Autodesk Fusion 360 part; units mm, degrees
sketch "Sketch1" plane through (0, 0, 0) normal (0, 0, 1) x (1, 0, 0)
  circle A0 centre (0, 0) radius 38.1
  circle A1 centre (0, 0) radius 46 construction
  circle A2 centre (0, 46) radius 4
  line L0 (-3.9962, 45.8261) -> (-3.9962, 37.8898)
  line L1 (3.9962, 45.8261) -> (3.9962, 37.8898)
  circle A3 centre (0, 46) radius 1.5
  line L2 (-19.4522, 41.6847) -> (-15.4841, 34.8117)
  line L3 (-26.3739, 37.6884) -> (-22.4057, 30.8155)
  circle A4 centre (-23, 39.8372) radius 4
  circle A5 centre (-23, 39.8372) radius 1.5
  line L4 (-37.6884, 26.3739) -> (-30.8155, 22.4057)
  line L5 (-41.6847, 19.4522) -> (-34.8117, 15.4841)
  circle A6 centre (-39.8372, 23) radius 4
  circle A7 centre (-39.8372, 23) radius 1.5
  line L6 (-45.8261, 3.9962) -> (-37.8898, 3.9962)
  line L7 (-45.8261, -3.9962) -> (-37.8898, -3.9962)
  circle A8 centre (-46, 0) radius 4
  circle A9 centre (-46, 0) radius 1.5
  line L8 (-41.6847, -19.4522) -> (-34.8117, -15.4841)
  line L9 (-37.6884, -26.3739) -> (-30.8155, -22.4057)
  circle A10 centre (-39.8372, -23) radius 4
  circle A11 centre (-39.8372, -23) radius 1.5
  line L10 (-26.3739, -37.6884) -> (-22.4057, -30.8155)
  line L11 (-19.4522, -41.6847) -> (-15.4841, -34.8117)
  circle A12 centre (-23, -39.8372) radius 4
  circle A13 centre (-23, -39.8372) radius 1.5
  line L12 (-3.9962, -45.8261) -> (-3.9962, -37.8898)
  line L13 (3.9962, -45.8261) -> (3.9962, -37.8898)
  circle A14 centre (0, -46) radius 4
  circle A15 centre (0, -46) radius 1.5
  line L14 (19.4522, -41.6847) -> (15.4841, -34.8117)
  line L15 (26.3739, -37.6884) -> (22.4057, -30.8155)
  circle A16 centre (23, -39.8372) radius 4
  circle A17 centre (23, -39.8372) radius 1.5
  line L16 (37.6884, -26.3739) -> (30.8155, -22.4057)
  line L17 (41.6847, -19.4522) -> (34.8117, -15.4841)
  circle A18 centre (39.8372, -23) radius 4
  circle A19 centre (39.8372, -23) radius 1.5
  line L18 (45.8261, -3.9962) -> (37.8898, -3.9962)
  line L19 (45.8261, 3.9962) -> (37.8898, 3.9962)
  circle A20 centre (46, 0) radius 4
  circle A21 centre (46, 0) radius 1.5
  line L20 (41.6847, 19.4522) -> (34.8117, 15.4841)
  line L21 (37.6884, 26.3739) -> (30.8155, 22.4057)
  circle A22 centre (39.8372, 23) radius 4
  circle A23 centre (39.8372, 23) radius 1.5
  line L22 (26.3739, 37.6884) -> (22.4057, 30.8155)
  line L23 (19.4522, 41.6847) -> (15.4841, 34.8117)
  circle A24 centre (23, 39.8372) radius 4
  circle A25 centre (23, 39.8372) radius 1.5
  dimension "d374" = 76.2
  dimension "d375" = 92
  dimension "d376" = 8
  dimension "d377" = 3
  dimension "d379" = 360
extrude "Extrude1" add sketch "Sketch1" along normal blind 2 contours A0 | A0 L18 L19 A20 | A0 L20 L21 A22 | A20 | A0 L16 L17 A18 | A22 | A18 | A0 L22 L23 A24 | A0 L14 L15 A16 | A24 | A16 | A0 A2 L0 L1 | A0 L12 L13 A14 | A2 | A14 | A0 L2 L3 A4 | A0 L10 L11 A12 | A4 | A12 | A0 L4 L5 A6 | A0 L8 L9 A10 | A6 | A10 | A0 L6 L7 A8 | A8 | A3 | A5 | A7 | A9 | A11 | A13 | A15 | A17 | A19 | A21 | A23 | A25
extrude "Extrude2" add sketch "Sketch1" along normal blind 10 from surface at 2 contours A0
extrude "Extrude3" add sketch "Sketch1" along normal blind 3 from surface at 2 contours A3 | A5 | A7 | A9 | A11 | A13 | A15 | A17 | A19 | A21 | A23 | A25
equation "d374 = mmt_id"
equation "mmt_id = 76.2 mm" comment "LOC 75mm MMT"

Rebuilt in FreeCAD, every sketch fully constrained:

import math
import FreeCAD as App
import Part
import Sketcher

V = App.Vector
Q = App.Units.Quantity

doc = App.newDocument("Part")
body = doc.addObject("PartDesign::Body", "Body")

# Sketch on XY plane
sketch1 = body.newObject("Sketcher::SketchObject", "Sketch")
sketch1.AttachmentSupport = (doc.getObject("XY_Plane"), [""])
sketch1.MapMode = "FlatFace"
sketch1.addGeometry([
    Part.ArcOfCircle(Part.Circle(V(0, 0, 0), V(0, 0, 1), 38.1), math.radians(-23.9793), math.radians(-6.020671)),  # 0
    Part.LineSegment(V(37.8898, -3.9962, 0), V(45.8261, -3.9962, 0)),  # 1
    Part.ArcOfCircle(Part.Circle(V(46, 0, 0), V(0, 0, 1), 4), math.radians(-92.491731), math.radians(92.491731)),  # 2
    Part.LineSegment(V(45.8261, 3.9962, 0), V(37.8898, 3.9962, 0)),  # 3
    Part.ArcOfCircle(Part.Circle(V(0, 0, 0), V(0, 0, 1), 38.1), math.radians(6.020671), math.radians(23.9793)),  # 4
    Part.LineSegment(V(34.8117, 15.4841, 0), V(41.6847, 19.4522, 0)),  # 5
    Part.ArcOfCircle(Part.Circle(V(39.8372, 23, 0), V(0, 0, 1), 4), math.radians(-62.491967), math.radians(122.492615)),  # 6
    Part.LineSegment(V(37.6884, 26.3739, 0), V(30.8155, 22.4057, 0)),  # 7
    Part.ArcOfCircle(Part.Circle(V(0, 0, 0), V(0, 0, 1), 38.1), math.radians(36.020596), math.radians(53.979404)),  # 8
    Part.LineSegment(V(22.4057, 30.8155, 0), V(26.3739, 37.6884, 0)),  # 9
    Part.ArcOfCircle(Part.Circle(V(23, 39.8372, 0), V(0, 0, 1), 4), math.radians(-32.492615), math.radians(152.491967)),  # 10
    Part.LineSegment(V(19.4522, 41.6847, 0), V(15.4841, 34.8117, 0)),  # 11
    Part.ArcOfCircle(Part.Circle(V(0, 0, 0), V(0, 0, 1), 38.1), math.radians(66.0207), math.radians(83.979329)),  # 12
    Part.LineSegment(V(3.9962, 37.8898, 0), V(3.9962, 45.8261, 0)),  # 13
    Part.ArcOfCircle(Part.Circle(V(0, 46, 0), V(0, 0, 1), 4), math.radians(-2.491731), math.radians(182.491731)),  # 14
    Part.LineSegment(V(-3.9962, 45.8261, 0), V(-3.9962, 37.8898, 0)),  # 15
    Part.ArcOfCircle(Part.Circle(V(0, 0, 0), V(0, 0, 1), 38.1), math.radians(96.020671), math.radians(113.9793)),  # 16
    Part.LineSegment(V(-15.4841, 34.8117, 0), V(-19.4522, 41.6847, 0)),  # 17
    Part.ArcOfCircle(Part.Circle(V(-23, 39.8372, 0), V(0, 0, 1), 4), math.radians(27.508033), math.radians(212.492615)),  # 18
    Part.LineSegment(V(-26.3739, 37.6884, 0), V(-22.4057, 30.8155, 0)),  # 19
    Part.ArcOfCircle(Part.Circle(V(0, 0, 0), V(0, 0, 1), 38.1), math.radians(126.020596), math.radians(143.979404)),  # 20
    Part.LineSegment(V(-30.8155, 22.4057, 0), V(-37.6884, 26.3739, 0)),  # 21
    Part.ArcOfCircle(Part.Circle(V(-39.8372, 23, 0), V(0, 0, 1), 4), math.radians(57.507385), math.radians(242.491967)),  # 22
    Part.LineSegment(V(-41.6847, 19.4522, 0), V(-34.8117, 15.4841, 0)),  # 23
    Part.ArcOfCircle(Part.Circle(V(0, 0, 0), V(0, 0, 1), 38.1), math.radians(156.0207), math.radians(173.979329)),  # 24
    Part.LineSegment(V(-37.8898, 3.9962, 0), V(-45.8261, 3.9962, 0)),  # 25
    Part.ArcOfCircle(Part.Circle(V(-46, 0, 0), V(0, 0, 1), 4), math.radians(87.508269), math.radians(272.491731)),  # 26
    Part.LineSegment(V(-45.8261, -3.9962, 0), V(-37.8898, -3.9962, 0)),  # 27
    Part.ArcOfCircle(Part.Circle(V(0, 0, 0), V(0, 0, 1), 38.1), math.radians(-173.979329), math.radians(-156.0207)),  # 28
    Part.LineSegment(V(-34.8117, -15.4841, 0), V(-41.6847, -19.4522, 0)),  # 29
    Part.ArcOfCircle(Part.Circle(V(-39.8372, -23, 0), V(0, 0, 1), 4), math.radians(117.508033), math.radians(302.492615)),  # 30
    Part.LineSegment(V(-37.6884, -26.3739, 0), V(-30.8155, -22.4057, 0)),  # 31
    Part.ArcOfCircle(Part.Circle(V(0, 0, 0), V(0, 0, 1), 38.1), math.radians(-143.979404), math.radians(-126.020596)),  # 32
    Part.LineSegment(V(-22.4057, -30.8155, 0), V(-26.3739, -37.6884, 0)),  # 33
    Part.ArcOfCircle(Part.Circle(V(-23, -39.8372, 0), V(0, 0, 1), 4), math.radians(147.507385), math.radians(332.491967)),  # 34
    Part.LineSegment(V(-19.4522, -41.6847, 0), V(-15.4841, -34.8117, 0)),  # 35
    Part.ArcOfCircle(Part.Circle(V(0, 0, 0), V(0, 0, 1), 38.1), math.radians(-113.9793), math.radians(-96.020671)),  # 36
    Part.LineSegment(V(-3.9962, -37.8898, 0), V(-3.9962, -45.8261, 0)),  # 37
    Part.ArcOfCircle(Part.Circle(V(0, -46, 0), V(0, 0, 1), 4), math.radians(177.508269), math.radians(362.491731)),  # 38
    Part.LineSegment(V(3.9962, -45.8261, 0), V(3.9962, -37.8898, 0)),  # 39
    Part.ArcOfCircle(Part.Circle(V(0, 0, 0), V(0, 0, 1), 38.1), math.radians(-83.979329), math.radians(-66.0207)),  # 40
    Part.LineSegment(V(15.4841, -34.8117, 0), V(19.4522, -41.6847, 0)),  # 41
    Part.ArcOfCircle(Part.Circle(V(23, -39.8372, 0), V(0, 0, 1), 4), math.radians(-152.491967), math.radians(32.492615)),  # 42
    Part.LineSegment(V(26.3739, -37.6884, 0), V(22.4057, -30.8155, 0)),  # 43
    Part.ArcOfCircle(Part.Circle(V(0, 0, 0), V(0, 0, 1), 38.1), math.radians(-53.979404), math.radians(-36.020596)),  # 44
    Part.LineSegment(V(30.8155, -22.4057, 0), V(37.6884, -26.3739, 0)),  # 45
    Part.ArcOfCircle(Part.Circle(V(39.8372, -23, 0), V(0, 0, 1), 4), math.radians(-122.492615), math.radians(62.491967)),  # 46
    Part.LineSegment(V(41.6847, -19.4522, 0), V(34.8117, -15.4841, 0)),  # 47
], False)
sketch1.addConstraint([
    Sketcher.Constraint("Coincident", 0, 2, 1, 1),
    Sketcher.Constraint("Coincident", 1, 2, 2, 1),
    Sketcher.Constraint("Coincident", 2, 2, 3, 1),
    Sketcher.Constraint("Coincident", 3, 2, 4, 1),
    Sketcher.Constraint("Coincident", 4, 2, 5, 1),
    Sketcher.Constraint("Coincident", 5, 2, 6, 1),
    Sketcher.Constraint("Coincident", 6, 2, 7, 1),
    Sketcher.Constraint("Coincident", 7, 2, 8, 1),
    Sketcher.Constraint("Coincident", 8, 2, 9, 1),
    Sketcher.Constraint("Coincident", 9, 2, 10, 1),
    Sketcher.Constraint("Coincident", 10, 2, 11, 1),
    Sketcher.Constraint("Coincident", 11, 2, 12, 1),
    Sketcher.Constraint("Coincident", 12, 2, 13, 1),
    Sketcher.Constraint("Coincident", 13, 2, 14, 1),
    Sketcher.Constraint("Coincident", 14, 2, 15, 1),
    Sketcher.Constraint("Coincident", 15, 2, 16, 1),
    Sketcher.Constraint("Coincident", 16, 2, 17, 1),
    Sketcher.Constraint("Coincident", 17, 2, 18, 1),
    Sketcher.Constraint("Coincident", 18, 2, 19, 1),
    Sketcher.Constraint("Coincident", 19, 2, 20, 1),
    Sketcher.Constraint("Coincident", 20, 2, 21, 1),
    Sketcher.Constraint("Coincident", 21, 2, 22, 1),
    Sketcher.Constraint("Coincident", 22, 2, 23, 1),
    Sketcher.Constraint("Coincident", 23, 2, 24, 1),
    Sketcher.Constraint("Coincident", 24, 2, 25, 1),
    Sketcher.Constraint("Coincident", 25, 2, 26, 1),
    Sketcher.Constraint("Coincident", 26, 2, 27, 1),
    Sketcher.Constraint("Coincident", 27, 2, 28, 1),
    Sketcher.Constraint("Coincident", 28, 2, 29, 1),
    Sketcher.Constraint("Coincident", 29, 2, 30, 1),
    Sketcher.Constraint("Coincident", 30, 2, 31, 1),
    Sketcher.Constraint("Coincident", 31, 2, 32, 1),
    Sketcher.Constraint("Coincident", 32, 2, 33, 1),
    Sketcher.Constraint("Coincident", 33, 2, 34, 1),
    Sketcher.Constraint("Coincident", 34, 2, 35, 1),
    Sketcher.Constraint("Coincident", 35, 2, 36, 1),
    Sketcher.Constraint("Coincident", 36, 2, 37, 1),
    Sketcher.Constraint("Coincident", 37, 2, 38, 1),
    Sketcher.Constraint("Coincident", 38, 2, 39, 1),
    Sketcher.Constraint("Coincident", 39, 2, 40, 1),
    Sketcher.Constraint("Coincident", 40, 2, 41, 1),
    Sketcher.Constraint("Coincident", 41, 2, 42, 1),
    Sketcher.Constraint("Coincident", 42, 2, 43, 1),
    Sketcher.Constraint("Coincident", 43, 2, 44, 1),
    Sketcher.Constraint("Coincident", 44, 2, 45, 1),
    Sketcher.Constraint("Coincident", 45, 2, 46, 1),
    Sketcher.Constraint("Coincident", 46, 2, 47, 1),
    Sketcher.Constraint("Coincident", 47, 2, 0, 1),
    Sketcher.Constraint("Horizontal", 1),
    Sketcher.Constraint("Horizontal", 3),
    Sketcher.Constraint("Vertical", 13),
    Sketcher.Constraint("Vertical", 15),
    Sketcher.Constraint("Horizontal", 25),
    Sketcher.Constraint("Horizontal", 27),
    Sketcher.Constraint("Vertical", 37),
    Sketcher.Constraint("Vertical", 39),
    Sketcher.Constraint("Coincident", 0, 3, -1, 1),
    Sketcher.Constraint("Coincident", 4, 3, -1, 1),
    Sketcher.Constraint("Coincident", 8, 3, -1, 1),
    Sketcher.Constraint("Coincident", 12, 3, -1, 1),
    Sketcher.Constraint("Coincident", 16, 3, -1, 1),
    Sketcher.Constraint("Coincident", 20, 3, -1, 1),
    Sketcher.Constraint("Coincident", 24, 3, -1, 1),
    Sketcher.Constraint("Coincident", 28, 3, -1, 1),
    Sketcher.Constraint("Coincident", 32, 3, -1, 1),
    Sketcher.Constraint("Coincident", 36, 3, -1, 1),
    Sketcher.Constraint("Coincident", 40, 3, -1, 1),
    Sketcher.Constraint("Coincident", 44, 3, -1, 1),
    Sketcher.Constraint("Equal", 0, 4),
    Sketcher.Constraint("Equal", 2, 6),
    Sketcher.Constraint("Equal", 4, 8),
    Sketcher.Constraint("Equal", 6, 10),
    Sketcher.Constraint("Equal", 8, 12),
    Sketcher.Constraint("Equal", 10, 14),
    Sketcher.Constraint("Equal", 12, 16),
    Sketcher.Constraint("Equal", 14, 18),
    Sketcher.Constraint("Equal", 16, 20),
    Sketcher.Constraint("Equal", 18, 22),
    Sketcher.Constraint("Equal", 20, 24),
    Sketcher.Constraint("Equal", 22, 26),
    Sketcher.Constraint("Equal", 24, 28),
    Sketcher.Constraint("Equal", 26, 30),
    Sketcher.Constraint("Equal", 28, 32),
    Sketcher.Constraint("Equal", 30, 34),
    Sketcher.Constraint("Equal", 32, 36),
    Sketcher.Constraint("Equal", 34, 38),
    Sketcher.Constraint("Equal", 36, 40),
    Sketcher.Constraint("Equal", 38, 42),
    Sketcher.Constraint("Equal", 40, 44),
    Sketcher.Constraint("Equal", 42, 46),
    Sketcher.Constraint("Symmetric", 2, 3, 26, 3, -1, 1),
    Sketcher.Constraint("Symmetric", 6, 3, 30, 3, -1, 1),
    Sketcher.Constraint("Symmetric", 10, 3, 34, 3, -1, 1),
    Sketcher.Constraint("Symmetric", 14, 3, 38, 3, -1, 1),
    Sketcher.Constraint("Symmetric", 18, 3, 42, 3, -1, 1),
    Sketcher.Constraint("Symmetric", 22, 3, 46, 3, -1, 1),
    Sketcher.Constraint("Symmetric", 10, 3, 18, 3, -2),
    Sketcher.Constraint("Symmetric", 6, 3, 22, 3, -2),
    Sketcher.Constraint("Symmetric", 13, 2, 14, 2, -2),
    Sketcher.Constraint("Symmetric", 2, 2, 25, 2, -2),
    Sketcher.Constraint("Parallel", 5, 7),
    Sketcher.Constraint("Parallel", 9, 11),
    Sketcher.Constraint("Perpendicular", 7, 17),
    Sketcher.Constraint("Parallel", 17, 19),
    Sketcher.Constraint("Perpendicular", 11, 21),
    Sketcher.Constraint("Parallel", 21, 23),
    Sketcher.Constraint("Perpendicular", 19, 29),
    Sketcher.Constraint("Parallel", 29, 31),
    Sketcher.Constraint("Perpendicular", 23, 33),
    Sketcher.Constraint("Parallel", 33, 35),
    Sketcher.Constraint("Perpendicular", 31, 41),
    Sketcher.Constraint("Parallel", 41, 43),
    Sketcher.Constraint("Perpendicular", 35, 45),
    Sketcher.Constraint("Parallel", 45, 47),
    Sketcher.Constraint("Horizontal", 11, 2, 16, 2),
    Sketcher.Constraint("Horizontal", 10, 2, 17, 2),
    Sketcher.Constraint("Horizontal", 9, 2, 18, 2),
    Sketcher.Constraint("Horizontal", 6, 2, 21, 2),
    Sketcher.Constraint("Horizontal", 5, 2, 22, 2),
    Sketcher.Constraint("Horizontal", 1, 2, 26, 2),
    Sketcher.Constraint("Horizontal", 37, 2, 38, 2),
    Sketcher.Constraint("Horizontal", 34, 2, 41, 2),
    Sketcher.Constraint("Horizontal", 33, 2, 42, 2),
    Sketcher.Constraint("Horizontal", 30, 2, 45, 2),
    Sketcher.Constraint("Horizontal", 29, 2, 46, 2),
    Sketcher.Constraint("Vertical", 1, 2, 2, 2),
    Sketcher.Constraint("Vertical", 22, 2, 29, 2),
    Sketcher.Constraint("Vertical", 21, 2, 30, 2),
    Sketcher.Constraint("Vertical", 18, 2, 33, 2),
    Sketcher.Constraint("Vertical", 17, 2, 34, 2),
    Sketcher.Constraint("Vertical", 13, 2, 38, 2),
    Sketcher.Constraint("Equal", 27, 13),
    Sketcher.Constraint("Equal", 5, 7),
    Sketcher.Constraint("Equal", 7, 9),
    Sketcher.Constraint("Equal", 9, 11),
    Sketcher.Constraint("Radius", 2, Q("4 mm")),
    Sketcher.Constraint("Radius", 0, Q("38.1 mm")),
    Sketcher.Constraint("Angle", 5, Q("29.9998 deg")),
    Sketcher.Constraint("DistanceX", -1, 1, 2, 3, Q("46 mm")),
    Sketcher.Constraint("DistanceY", -1, 1, 6, 3, Q("23 mm")),
    Sketcher.Constraint("DistanceX", -1, 1, 10, 3, Q("23 mm")),
    Sketcher.Constraint("DistanceY", -1, 1, 14, 3, Q("46 mm")),
    Sketcher.Constraint("DistanceX", 1, 1, 1, 2, Q("7.9363 mm")),
    Sketcher.Constraint("DistanceY", -1, 1, 4, 2, Q("15.484 mm")),
    Sketcher.Constraint("DistanceX", -1, 1, 9, 2, Q("26.374 mm")),
    Sketcher.Constraint("DistanceX", -1, 1, 11, 2, Q("15.484 mm")),
])
pad1 = body.newObject("PartDesign::Pad", "Pad")
pad1.Profile = sketch1
pad1.Length = 2

# Sketch on XY plane
sketch2 = body.newObject("Sketcher::SketchObject", "Sketch001")
sketch2.AttachmentSupport = (doc.getObject("XY_Plane"), [""])
sketch2.MapMode = "FlatFace"
sketch2.AttachmentOffset = App.Placement(V(0, 0, 2), App.Rotation())
sketch2.addGeometry(Part.Circle(V(0, 0, 0), V(0, 0, 1), 38.1), False)
sketch2.addConstraint([
    Sketcher.Constraint("Coincident", 0, 3, -1, 1),
    Sketcher.Constraint("Diameter", 0, Q("76.2 mm")),
])
pad2 = body.newObject("PartDesign::Pad", "Pad001")
pad2.Profile = sketch2
pad2.Length = 10

# Sketch on XY plane
sketch3 = body.newObject("Sketcher::SketchObject", "Sketch002")
sketch3.AttachmentSupport = (doc.getObject("XY_Plane"), [""])
sketch3.MapMode = "FlatFace"
sketch3.AttachmentOffset = App.Placement(V(0, 0, 2), App.Rotation())
sketch3.addGeometry([
    Part.Circle(V(0, 46, 0), V(0, 0, 1), 1.5),  # 0
    Part.Circle(V(-23, 39.8372, 0), V(0, 0, 1), 1.5),  # 1
    Part.Circle(V(-39.8372, 23, 0), V(0, 0, 1), 1.5),  # 2
    Part.Circle(V(-46, 0, 0), V(0, 0, 1), 1.5),  # 3
    Part.Circle(V(-39.8372, -23, 0), V(0, 0, 1), 1.5),  # 4
    Part.Circle(V(-23, -39.8372, 0), V(0, 0, 1), 1.5),  # 5
    Part.Circle(V(0, -46, 0), V(0, 0, 1), 1.5),  # 6
    Part.Circle(V(23, -39.8372, 0), V(0, 0, 1), 1.5),  # 7
    Part.Circle(V(39.8372, -23, 0), V(0, 0, 1), 1.5),  # 8
    Part.Circle(V(46, 0, 0), V(0, 0, 1), 1.5),  # 9
    Part.Circle(V(39.8372, 23, 0), V(0, 0, 1), 1.5),  # 10
    Part.Circle(V(23, 39.8372, 0), V(0, 0, 1), 1.5),  # 11
], False)
sketch3.addConstraint([
    Sketcher.Constraint("Equal", 0, 1),
    Sketcher.Constraint("Equal", 1, 2),
    Sketcher.Constraint("Equal", 2, 3),
    Sketcher.Constraint("Equal", 3, 4),
    Sketcher.Constraint("Equal", 4, 5),
    Sketcher.Constraint("Equal", 5, 6),
    Sketcher.Constraint("Equal", 6, 7),
    Sketcher.Constraint("Equal", 7, 8),
    Sketcher.Constraint("Equal", 8, 9),
    Sketcher.Constraint("Equal", 9, 10),
    Sketcher.Constraint("Equal", 10, 11),
    Sketcher.Constraint("Symmetric", 0, 3, 6, 3, -1, 1),
    Sketcher.Constraint("Symmetric", 1, 3, 7, 3, -1, 1),
    Sketcher.Constraint("Symmetric", 2, 3, 8, 3, -1, 1),
    Sketcher.Constraint("Symmetric", 3, 3, 9, 3, -1, 1),
    Sketcher.Constraint("Symmetric", 4, 3, 10, 3, -1, 1),
    Sketcher.Constraint("Symmetric", 5, 3, 11, 3, -1, 1),
    Sketcher.Constraint("Symmetric", 5, 3, 7, 3, -2),
    Sketcher.Constraint("Symmetric", 4, 3, 8, 3, -2),
    Sketcher.Constraint("PointOnObject", 0, 3, -2),
    Sketcher.Constraint("PointOnObject", 3, 3, -1),
    Sketcher.Constraint("Diameter", 0, Q("3 mm")),
    Sketcher.Constraint("DistanceY", -1, 1, 0, 3, Q("46 mm")),
    Sketcher.Constraint("DistanceX", 1, 3, -1, 1, Q("23 mm")),
    Sketcher.Constraint("DistanceY", -1, 1, 2, 3, Q("23 mm")),
    Sketcher.Constraint("DistanceX", 3, 3, -1, 1, Q("46 mm")),
    Sketcher.Constraint("DistanceY", -1, 1, 1, 3, Q("39.8372 mm")),
    Sketcher.Constraint("DistanceX", 2, 3, -1, 1, Q("39.8372 mm")),
])
pad3 = body.newObject("PartDesign::Pad", "Pad002")
pad3.Profile = sketch3
pad3.Length = 3

doc.recompute()
